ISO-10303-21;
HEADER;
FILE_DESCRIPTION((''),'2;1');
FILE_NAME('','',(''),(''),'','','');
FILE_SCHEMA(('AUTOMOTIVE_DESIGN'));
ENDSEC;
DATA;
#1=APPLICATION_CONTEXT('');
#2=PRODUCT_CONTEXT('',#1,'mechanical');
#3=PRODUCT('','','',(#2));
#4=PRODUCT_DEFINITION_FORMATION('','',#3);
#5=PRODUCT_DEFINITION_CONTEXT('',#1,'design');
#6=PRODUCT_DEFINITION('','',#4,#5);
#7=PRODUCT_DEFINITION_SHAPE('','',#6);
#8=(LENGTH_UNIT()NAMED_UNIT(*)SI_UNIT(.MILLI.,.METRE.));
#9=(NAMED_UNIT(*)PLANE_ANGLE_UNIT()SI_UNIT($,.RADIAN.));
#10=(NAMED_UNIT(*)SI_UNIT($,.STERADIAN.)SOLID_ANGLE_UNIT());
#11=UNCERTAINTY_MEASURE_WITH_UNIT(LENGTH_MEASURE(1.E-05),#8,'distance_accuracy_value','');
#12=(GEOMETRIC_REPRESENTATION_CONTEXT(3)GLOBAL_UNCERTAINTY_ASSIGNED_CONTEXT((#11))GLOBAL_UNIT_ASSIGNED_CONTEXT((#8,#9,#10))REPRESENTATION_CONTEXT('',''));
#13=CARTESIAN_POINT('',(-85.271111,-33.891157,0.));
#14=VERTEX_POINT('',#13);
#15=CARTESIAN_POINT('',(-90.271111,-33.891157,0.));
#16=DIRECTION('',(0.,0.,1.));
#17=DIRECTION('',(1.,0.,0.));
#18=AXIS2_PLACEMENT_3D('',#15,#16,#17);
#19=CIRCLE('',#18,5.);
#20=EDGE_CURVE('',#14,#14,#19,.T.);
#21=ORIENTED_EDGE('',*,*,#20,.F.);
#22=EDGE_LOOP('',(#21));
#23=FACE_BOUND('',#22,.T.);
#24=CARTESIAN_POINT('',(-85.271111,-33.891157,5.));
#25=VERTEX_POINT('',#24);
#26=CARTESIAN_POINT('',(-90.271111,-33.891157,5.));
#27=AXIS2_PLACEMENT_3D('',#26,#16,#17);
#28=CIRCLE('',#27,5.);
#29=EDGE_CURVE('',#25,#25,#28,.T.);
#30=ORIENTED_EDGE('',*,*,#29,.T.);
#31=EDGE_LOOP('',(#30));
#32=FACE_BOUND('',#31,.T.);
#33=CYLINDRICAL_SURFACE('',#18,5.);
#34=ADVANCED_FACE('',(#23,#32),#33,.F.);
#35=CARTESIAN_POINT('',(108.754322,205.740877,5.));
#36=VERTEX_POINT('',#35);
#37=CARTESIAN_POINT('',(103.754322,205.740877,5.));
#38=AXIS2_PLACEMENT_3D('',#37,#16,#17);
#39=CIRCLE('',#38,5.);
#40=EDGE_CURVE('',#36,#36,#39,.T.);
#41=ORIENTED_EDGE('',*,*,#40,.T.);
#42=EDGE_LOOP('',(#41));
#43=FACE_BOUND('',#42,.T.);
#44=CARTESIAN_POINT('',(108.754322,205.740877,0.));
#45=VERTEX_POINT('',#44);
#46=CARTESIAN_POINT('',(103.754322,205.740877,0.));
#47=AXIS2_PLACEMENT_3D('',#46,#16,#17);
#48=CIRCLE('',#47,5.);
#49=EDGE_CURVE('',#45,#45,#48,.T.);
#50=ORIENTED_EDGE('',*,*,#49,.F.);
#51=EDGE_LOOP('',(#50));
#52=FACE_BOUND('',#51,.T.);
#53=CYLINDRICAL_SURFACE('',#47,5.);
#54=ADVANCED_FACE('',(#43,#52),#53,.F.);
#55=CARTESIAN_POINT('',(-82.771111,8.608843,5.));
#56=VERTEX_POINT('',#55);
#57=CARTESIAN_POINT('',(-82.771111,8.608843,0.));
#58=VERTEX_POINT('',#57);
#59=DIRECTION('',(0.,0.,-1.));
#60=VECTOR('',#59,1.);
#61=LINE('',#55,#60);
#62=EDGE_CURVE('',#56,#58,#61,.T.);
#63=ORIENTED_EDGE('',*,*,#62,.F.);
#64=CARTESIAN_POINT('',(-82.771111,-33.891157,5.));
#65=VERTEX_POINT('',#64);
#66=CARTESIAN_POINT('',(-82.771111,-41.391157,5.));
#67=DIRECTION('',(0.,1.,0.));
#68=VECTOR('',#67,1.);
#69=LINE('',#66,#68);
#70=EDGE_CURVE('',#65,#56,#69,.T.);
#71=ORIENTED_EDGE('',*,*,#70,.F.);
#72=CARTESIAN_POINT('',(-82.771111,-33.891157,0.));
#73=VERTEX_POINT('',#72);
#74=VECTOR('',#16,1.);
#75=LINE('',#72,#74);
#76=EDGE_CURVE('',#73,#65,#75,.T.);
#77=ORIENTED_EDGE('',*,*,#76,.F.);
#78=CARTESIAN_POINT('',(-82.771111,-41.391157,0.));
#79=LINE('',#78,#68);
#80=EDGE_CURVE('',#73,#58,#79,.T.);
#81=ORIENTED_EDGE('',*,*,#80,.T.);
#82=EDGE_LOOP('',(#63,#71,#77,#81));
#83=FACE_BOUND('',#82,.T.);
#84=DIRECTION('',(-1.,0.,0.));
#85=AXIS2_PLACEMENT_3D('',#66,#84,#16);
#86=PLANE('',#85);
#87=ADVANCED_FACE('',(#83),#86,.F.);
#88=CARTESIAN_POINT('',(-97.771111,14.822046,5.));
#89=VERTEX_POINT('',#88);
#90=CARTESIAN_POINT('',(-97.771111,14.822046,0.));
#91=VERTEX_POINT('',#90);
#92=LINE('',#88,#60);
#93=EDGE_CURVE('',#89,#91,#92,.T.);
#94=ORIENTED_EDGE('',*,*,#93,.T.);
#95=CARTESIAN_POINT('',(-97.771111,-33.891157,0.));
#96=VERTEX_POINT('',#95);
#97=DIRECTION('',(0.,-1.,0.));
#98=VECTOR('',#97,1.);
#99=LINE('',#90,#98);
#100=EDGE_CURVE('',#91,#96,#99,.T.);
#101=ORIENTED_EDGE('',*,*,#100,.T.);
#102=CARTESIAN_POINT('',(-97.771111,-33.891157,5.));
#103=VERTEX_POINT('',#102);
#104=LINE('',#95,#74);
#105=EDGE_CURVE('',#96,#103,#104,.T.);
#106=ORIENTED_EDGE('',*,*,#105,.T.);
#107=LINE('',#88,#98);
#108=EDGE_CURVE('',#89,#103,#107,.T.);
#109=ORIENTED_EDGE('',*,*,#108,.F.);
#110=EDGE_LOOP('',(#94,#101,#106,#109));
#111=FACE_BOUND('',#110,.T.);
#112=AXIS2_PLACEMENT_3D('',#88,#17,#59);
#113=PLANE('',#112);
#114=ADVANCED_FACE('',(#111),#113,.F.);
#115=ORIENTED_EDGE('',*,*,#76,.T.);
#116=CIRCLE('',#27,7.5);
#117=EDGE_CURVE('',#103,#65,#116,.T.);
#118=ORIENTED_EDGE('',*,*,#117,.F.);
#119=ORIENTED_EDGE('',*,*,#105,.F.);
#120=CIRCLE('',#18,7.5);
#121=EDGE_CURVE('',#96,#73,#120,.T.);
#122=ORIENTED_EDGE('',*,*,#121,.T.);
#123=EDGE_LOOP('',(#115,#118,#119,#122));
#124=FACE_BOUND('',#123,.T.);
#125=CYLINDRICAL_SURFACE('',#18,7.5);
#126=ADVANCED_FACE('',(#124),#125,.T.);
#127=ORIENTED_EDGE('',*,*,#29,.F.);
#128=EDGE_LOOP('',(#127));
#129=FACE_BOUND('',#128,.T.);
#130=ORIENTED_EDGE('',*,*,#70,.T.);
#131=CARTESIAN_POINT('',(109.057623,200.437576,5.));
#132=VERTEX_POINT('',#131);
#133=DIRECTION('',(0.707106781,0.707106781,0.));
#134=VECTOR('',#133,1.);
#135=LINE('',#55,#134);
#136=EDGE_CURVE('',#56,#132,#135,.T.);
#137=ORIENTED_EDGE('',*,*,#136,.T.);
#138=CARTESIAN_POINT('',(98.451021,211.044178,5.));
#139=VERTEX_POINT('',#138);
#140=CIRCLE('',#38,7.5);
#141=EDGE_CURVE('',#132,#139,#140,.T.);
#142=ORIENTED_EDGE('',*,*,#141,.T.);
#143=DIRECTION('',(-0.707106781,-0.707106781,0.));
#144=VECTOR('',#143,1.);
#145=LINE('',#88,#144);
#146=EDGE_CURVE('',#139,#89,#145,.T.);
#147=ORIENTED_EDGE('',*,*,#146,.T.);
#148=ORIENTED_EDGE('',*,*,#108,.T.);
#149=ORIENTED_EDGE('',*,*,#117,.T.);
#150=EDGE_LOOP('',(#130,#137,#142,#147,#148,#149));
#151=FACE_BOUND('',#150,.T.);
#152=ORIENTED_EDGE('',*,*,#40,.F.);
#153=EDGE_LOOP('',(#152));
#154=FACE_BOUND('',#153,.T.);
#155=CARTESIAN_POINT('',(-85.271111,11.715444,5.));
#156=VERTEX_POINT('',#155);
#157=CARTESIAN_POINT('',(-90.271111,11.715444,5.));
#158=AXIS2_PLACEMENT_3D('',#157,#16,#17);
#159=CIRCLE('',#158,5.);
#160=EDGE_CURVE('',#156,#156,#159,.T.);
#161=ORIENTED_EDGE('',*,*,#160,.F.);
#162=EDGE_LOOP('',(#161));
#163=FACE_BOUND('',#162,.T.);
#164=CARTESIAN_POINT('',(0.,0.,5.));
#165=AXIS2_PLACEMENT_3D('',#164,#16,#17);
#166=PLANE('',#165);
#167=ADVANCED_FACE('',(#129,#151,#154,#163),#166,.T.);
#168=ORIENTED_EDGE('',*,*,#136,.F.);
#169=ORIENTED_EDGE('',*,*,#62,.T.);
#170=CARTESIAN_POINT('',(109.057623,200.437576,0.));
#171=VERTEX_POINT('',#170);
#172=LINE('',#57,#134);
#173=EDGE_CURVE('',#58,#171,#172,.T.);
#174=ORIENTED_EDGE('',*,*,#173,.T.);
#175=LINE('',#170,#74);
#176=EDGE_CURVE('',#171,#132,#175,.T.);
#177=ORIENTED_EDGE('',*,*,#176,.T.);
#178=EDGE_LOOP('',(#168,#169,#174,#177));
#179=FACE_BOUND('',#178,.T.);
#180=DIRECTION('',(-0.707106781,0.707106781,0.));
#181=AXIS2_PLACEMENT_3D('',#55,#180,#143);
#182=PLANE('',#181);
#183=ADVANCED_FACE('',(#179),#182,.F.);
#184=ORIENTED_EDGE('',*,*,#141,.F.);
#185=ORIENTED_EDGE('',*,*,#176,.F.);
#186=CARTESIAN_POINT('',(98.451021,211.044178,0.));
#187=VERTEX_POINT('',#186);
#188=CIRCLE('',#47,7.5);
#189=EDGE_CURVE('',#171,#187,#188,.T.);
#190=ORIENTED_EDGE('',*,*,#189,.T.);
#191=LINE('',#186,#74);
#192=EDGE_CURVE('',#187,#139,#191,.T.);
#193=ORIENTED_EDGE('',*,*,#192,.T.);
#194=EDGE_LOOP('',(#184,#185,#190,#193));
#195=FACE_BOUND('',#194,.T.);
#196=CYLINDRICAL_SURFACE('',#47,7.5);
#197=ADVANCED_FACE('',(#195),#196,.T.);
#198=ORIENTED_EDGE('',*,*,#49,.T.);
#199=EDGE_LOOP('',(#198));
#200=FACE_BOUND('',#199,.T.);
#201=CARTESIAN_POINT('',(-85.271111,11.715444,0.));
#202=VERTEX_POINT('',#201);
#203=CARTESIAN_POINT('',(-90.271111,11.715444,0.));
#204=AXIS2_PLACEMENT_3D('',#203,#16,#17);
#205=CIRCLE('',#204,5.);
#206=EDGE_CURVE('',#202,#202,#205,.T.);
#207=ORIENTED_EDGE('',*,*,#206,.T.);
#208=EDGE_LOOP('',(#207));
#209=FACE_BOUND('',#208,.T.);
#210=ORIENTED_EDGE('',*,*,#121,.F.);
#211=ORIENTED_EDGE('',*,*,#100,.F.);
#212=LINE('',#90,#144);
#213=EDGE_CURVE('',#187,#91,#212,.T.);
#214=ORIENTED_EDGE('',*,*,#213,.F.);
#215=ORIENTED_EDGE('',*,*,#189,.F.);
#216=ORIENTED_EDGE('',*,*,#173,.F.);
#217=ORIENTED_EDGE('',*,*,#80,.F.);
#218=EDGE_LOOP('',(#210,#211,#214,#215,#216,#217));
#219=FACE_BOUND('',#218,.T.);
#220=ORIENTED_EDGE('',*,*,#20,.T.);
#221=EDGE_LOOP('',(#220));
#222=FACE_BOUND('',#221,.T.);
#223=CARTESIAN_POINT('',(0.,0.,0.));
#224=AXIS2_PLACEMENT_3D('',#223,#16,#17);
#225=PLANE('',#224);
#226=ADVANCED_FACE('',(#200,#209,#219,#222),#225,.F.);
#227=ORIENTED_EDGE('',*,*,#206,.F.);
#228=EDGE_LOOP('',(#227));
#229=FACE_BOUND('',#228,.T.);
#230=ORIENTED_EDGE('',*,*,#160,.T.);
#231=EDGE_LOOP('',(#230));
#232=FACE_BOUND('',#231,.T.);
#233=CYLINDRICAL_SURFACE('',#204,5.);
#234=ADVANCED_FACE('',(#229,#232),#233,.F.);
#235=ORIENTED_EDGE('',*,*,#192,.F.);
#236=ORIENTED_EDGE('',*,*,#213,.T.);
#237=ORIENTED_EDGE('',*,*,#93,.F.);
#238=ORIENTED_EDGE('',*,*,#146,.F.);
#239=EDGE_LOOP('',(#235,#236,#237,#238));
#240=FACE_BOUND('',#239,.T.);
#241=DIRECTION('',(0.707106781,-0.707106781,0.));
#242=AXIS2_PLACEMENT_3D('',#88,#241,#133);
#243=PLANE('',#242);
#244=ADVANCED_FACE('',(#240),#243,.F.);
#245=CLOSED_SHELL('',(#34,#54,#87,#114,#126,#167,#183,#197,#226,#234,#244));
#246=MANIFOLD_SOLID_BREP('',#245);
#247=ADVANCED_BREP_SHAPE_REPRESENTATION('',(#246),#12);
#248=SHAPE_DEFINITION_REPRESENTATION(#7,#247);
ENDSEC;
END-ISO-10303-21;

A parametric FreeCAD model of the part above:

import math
import FreeCAD as App
import Part
import Sketcher
Q = App.Units.Quantity


def add_polygon(sketch, points):
    """Adds a closed chain of lines whose ends are joined by coincident constraints."""
    first, n = sketch.GeometryCount, len(points)
    for a, b in zip(points, points[1:] + points[:1]):
        sketch.addGeometry(Part.LineSegment(App.Vector(*a, 0), App.Vector(*b, 0)), False)
    for i in range(n):
        sketch.addConstraint(Sketcher.Constraint("Coincident", first + i, 2, first + (i + 1) % n, 1))

doc = App.newDocument("Part")
body = doc.addObject("PartDesign::Body", "Body")

# Sketch on XY plane
sketch1 = body.newObject("Sketcher::SketchObject", "Sketch")
sketch1.AttachmentSupport = (doc.getObject("XY_Plane"), [""])
sketch1.MapMode = "FlatFace"
add_polygon(sketch1, [(-98, 15), (-98, -41), (-83, -41), (-83, 9), (114, 206), (104, 216)])  # lines 0-5
sketch1.addConstraint(Sketcher.Constraint("Vertical", 0))
sketch1.addConstraint(Sketcher.Constraint("Horizontal", 1))
sketch1.addConstraint(Sketcher.Constraint("Vertical", 2))
sketch1.addConstraint(Sketcher.Constraint("Perpendicular", 3, 4))
sketch1.addConstraint(Sketcher.Constraint("Perpendicular", 4, 5))
sketch1.addConstraint(Sketcher.Constraint("DistanceX", 1, 1, 1, 2, Q("15 mm")))
sketch1.addConstraint(Sketcher.Constraint("DistanceY", 2, 1, 2, 2, Q("50 mm")))
sketch1.addConstraint(Sketcher.Constraint("Angle", 3, Q("45 deg")))
sketch1.addConstraint(Sketcher.Constraint("Distance", 4, Q("15 mm")))
sketch1.addConstraint(Sketcher.Constraint("Distance", 5, Q("285 mm")))
sketch1.addConstraint(Sketcher.Constraint("DistanceX", 0, 2, -1, 1, Q("97.771111 mm")))
sketch1.addConstraint(Sketcher.Constraint("DistanceY", -1, 1, 4, 2, Q("216.347479 mm")))
pad1 = body.newObject("PartDesign::Pad", "Pad")
pad1.Profile = sketch1
pad1.Length = 5

# Sketch on XY plane
sketch2 = body.newObject("Sketcher::SketchObject", "Sketch001")
sketch2.AttachmentSupport = (doc.getObject("XY_Plane"), [""])
sketch2.MapMode = "FlatFace"
sketch2.AttachmentOffset = App.Placement(App.Vector(0, 0, 5), App.Rotation())
sketch2.addGeometry(Part.Circle(App.Vector(-90, -34, 0), App.Vector(0, 0, 1), 5), False)
sketch2.addGeometry(Part.ArcOfCircle(Part.Circle(App.Vector(-90, -34, 0), App.Vector(0, 0, 1), 8), math.radians(180), math.radians(270)), False)
sketch2.addGeometry(Part.LineSegment(App.Vector(-98, -34, 0), App.Vector(-98, -41, 0)), False)
sketch2.addGeometry(Part.LineSegment(App.Vector(-98, -41, 0), App.Vector(-90, -41, 0)), False)
sketch2.addGeometry(Part.LineSegment(App.Vector(-83, -41, 0), App.Vector(-83, -34, 0)), False)
sketch2.addGeometry(Part.ArcOfCircle(Part.Circle(App.Vector(-90, -34, 0), App.Vector(0, 0, 1), 8), math.radians(-90), math.radians(0)), False)
sketch2.addGeometry(Part.LineSegment(App.Vector(-90, -41, 0), App.Vector(-83, -41, 0)), False)
sketch2.addGeometry(Part.Circle(App.Vector(104, 206, 0), App.Vector(0, 0, 1), 5), False)
sketch2.addGeometry(Part.LineSegment(App.Vector(109, 211, 0), App.Vector(104, 216, 0)), False)
sketch2.addGeometry(Part.LineSegment(App.Vector(104, 216, 0), App.Vector(98, 211, 0)), False)
sketch2.addGeometry(Part.ArcOfCircle(Part.Circle(App.Vector(104, 206, 0), App.Vector(0, 0, 1), 8), math.radians(45), math.radians(135)), False)
sketch2.addGeometry(Part.LineSegment(App.Vector(114, 206, 0), App.Vector(109, 211, 0)), False)
sketch2.addGeometry(Part.ArcOfCircle(Part.Circle(App.Vector(104, 206, 0), App.Vector(0, 0, 1), 8), math.radians(0), math.radians(45)), False)
sketch2.addGeometry(Part.ArcOfCircle(Part.Circle(App.Vector(104, 206, 0), App.Vector(0, 0, 1), 7), math.radians(-45), math.radians(0)), False)
sketch2.addGeometry(Part.LineSegment(App.Vector(109, 200, 0), App.Vector(114, 206, 0)), False)
sketch2.addConstraint(Sketcher.Constraint("Tangent", 1, 1, 2, 1))
sketch2.addConstraint(Sketcher.Constraint("Coincident", 2, 2, 3, 1))
sketch2.addConstraint(Sketcher.Constraint("Tangent", 3, 2, 1, 2))
sketch2.addConstraint(Sketcher.Constraint("Tangent", 4, 2, 5, 2))
sketch2.addConstraint(Sketcher.Constraint("Tangent", 5, 1, 6, 1))
sketch2.addConstraint(Sketcher.Constraint("Coincident", 6, 2, 4, 1))
sketch2.addConstraint(Sketcher.Constraint("Coincident", 8, 2, 9, 1))
sketch2.addConstraint(Sketcher.Constraint("Tangent", 9, 2, 10, 2))
sketch2.addConstraint(Sketcher.Constraint("Tangent", 10, 1, 8, 1))
sketch2.addConstraint(Sketcher.Constraint("Tangent", 11, 2, 12, 2))
sketch2.addConstraint(Sketcher.Constraint("Tangent", 12, 1, 13, 2))
sketch2.addConstraint(Sketcher.Constraint("Tangent", 13, 1, 14, 1))
sketch2.addConstraint(Sketcher.Constraint("Coincident", 14, 2, 11, 1))
sketch2.addConstraint(Sketcher.Constraint("Vertical", 2))
sketch2.addConstraint(Sketcher.Constraint("Horizontal", 3))
sketch2.addConstraint(Sketcher.Constraint("Vertical", 4))
sketch2.addConstraint(Sketcher.Constraint("Horizontal", 6))
sketch2.addConstraint(Sketcher.Constraint("Coincident", 1, 3, 0, 3))
sketch2.addConstraint(Sketcher.Constraint("Coincident", 5, 3, 0, 3))
sketch2.addConstraint(Sketcher.Constraint("Coincident", 10, 3, 7, 3))
sketch2.addConstraint(Sketcher.Constraint("Coincident", 12, 3, 7, 3))
sketch2.addConstraint(Sketcher.Constraint("Coincident", 11, 2, 10, 1))
sketch2.addConstraint(Sketcher.Constraint("Equal", 1, 5))
sketch2.addConstraint(Sketcher.Constraint("Equal", 0, 7))
sketch2.addConstraint(Sketcher.Constraint("Equal", 5, 10))
sketch2.addConstraint(Sketcher.Constraint("Equal", 12, 13))
sketch2.addConstraint(Sketcher.Constraint("Perpendicular", 8, 9))
sketch2.addConstraint(Sketcher.Constraint("Perpendicular", 11, 14))
sketch2.addConstraint(Sketcher.Constraint("Horizontal", 9, 2, 10, 1))
sketch2.addConstraint(Sketcher.Constraint("Horizontal", 13, 3, 12, 1))
sketch2.addConstraint(Sketcher.Constraint("Diameter", 0, Q("10 mm")))
sketch2.addConstraint(Sketcher.Constraint("Radius", 1, Q("7.5 mm")))
sketch2.addConstraint(Sketcher.Constraint("DistanceX", 0, 3, -1, 1, Q("90.271111 mm")))
sketch2.addConstraint(Sketcher.Constraint("DistanceX", -1, 1, 7, 3, Q("103.754322 mm")))
sketch2.addConstraint(Sketcher.Constraint("DistanceY", -1, 1, 8, 2, Q("216.347479 mm")))
sketch2.addConstraint(Sketcher.Constraint("DistanceY", 0, 3, -1, 1, Q("33.891157 mm")))
pocket1 = body.newObject("PartDesign::Pocket", "Pocket")
pocket1.Profile = sketch2
pocket1.Length = 5

# Sketch on XY plane
sketch3 = body.newObject("Sketcher::SketchObject", "Sketch002")
sketch3.AttachmentSupport = (doc.getObject("XY_Plane"), [""])
sketch3.MapMode = "FlatFace"
sketch3.AttachmentOffset = App.Placement(App.Vector(0, 0, 5), App.Rotation())
sketch3.addGeometry(Part.Circle(App.Vector(-90, 12, 0), App.Vector(0, 0, 1), 5), False)
sketch3.addConstraint(Sketcher.Constraint("Diameter", 0, Q("10 mm")))
sketch3.addConstraint(Sketcher.Constraint("DistanceX", 0, 3, -1, 1, Q("90.271111 mm")))
sketch3.addConstraint(Sketcher.Constraint("DistanceY", -1, 1, 0, 3, Q("11.715444 mm")))
pocket2 = body.newObject("PartDesign::Pocket", "Pocket001")
pocket2.Profile = sketch3
pocket2.Type = "ThroughAll"

doc.recompute()
